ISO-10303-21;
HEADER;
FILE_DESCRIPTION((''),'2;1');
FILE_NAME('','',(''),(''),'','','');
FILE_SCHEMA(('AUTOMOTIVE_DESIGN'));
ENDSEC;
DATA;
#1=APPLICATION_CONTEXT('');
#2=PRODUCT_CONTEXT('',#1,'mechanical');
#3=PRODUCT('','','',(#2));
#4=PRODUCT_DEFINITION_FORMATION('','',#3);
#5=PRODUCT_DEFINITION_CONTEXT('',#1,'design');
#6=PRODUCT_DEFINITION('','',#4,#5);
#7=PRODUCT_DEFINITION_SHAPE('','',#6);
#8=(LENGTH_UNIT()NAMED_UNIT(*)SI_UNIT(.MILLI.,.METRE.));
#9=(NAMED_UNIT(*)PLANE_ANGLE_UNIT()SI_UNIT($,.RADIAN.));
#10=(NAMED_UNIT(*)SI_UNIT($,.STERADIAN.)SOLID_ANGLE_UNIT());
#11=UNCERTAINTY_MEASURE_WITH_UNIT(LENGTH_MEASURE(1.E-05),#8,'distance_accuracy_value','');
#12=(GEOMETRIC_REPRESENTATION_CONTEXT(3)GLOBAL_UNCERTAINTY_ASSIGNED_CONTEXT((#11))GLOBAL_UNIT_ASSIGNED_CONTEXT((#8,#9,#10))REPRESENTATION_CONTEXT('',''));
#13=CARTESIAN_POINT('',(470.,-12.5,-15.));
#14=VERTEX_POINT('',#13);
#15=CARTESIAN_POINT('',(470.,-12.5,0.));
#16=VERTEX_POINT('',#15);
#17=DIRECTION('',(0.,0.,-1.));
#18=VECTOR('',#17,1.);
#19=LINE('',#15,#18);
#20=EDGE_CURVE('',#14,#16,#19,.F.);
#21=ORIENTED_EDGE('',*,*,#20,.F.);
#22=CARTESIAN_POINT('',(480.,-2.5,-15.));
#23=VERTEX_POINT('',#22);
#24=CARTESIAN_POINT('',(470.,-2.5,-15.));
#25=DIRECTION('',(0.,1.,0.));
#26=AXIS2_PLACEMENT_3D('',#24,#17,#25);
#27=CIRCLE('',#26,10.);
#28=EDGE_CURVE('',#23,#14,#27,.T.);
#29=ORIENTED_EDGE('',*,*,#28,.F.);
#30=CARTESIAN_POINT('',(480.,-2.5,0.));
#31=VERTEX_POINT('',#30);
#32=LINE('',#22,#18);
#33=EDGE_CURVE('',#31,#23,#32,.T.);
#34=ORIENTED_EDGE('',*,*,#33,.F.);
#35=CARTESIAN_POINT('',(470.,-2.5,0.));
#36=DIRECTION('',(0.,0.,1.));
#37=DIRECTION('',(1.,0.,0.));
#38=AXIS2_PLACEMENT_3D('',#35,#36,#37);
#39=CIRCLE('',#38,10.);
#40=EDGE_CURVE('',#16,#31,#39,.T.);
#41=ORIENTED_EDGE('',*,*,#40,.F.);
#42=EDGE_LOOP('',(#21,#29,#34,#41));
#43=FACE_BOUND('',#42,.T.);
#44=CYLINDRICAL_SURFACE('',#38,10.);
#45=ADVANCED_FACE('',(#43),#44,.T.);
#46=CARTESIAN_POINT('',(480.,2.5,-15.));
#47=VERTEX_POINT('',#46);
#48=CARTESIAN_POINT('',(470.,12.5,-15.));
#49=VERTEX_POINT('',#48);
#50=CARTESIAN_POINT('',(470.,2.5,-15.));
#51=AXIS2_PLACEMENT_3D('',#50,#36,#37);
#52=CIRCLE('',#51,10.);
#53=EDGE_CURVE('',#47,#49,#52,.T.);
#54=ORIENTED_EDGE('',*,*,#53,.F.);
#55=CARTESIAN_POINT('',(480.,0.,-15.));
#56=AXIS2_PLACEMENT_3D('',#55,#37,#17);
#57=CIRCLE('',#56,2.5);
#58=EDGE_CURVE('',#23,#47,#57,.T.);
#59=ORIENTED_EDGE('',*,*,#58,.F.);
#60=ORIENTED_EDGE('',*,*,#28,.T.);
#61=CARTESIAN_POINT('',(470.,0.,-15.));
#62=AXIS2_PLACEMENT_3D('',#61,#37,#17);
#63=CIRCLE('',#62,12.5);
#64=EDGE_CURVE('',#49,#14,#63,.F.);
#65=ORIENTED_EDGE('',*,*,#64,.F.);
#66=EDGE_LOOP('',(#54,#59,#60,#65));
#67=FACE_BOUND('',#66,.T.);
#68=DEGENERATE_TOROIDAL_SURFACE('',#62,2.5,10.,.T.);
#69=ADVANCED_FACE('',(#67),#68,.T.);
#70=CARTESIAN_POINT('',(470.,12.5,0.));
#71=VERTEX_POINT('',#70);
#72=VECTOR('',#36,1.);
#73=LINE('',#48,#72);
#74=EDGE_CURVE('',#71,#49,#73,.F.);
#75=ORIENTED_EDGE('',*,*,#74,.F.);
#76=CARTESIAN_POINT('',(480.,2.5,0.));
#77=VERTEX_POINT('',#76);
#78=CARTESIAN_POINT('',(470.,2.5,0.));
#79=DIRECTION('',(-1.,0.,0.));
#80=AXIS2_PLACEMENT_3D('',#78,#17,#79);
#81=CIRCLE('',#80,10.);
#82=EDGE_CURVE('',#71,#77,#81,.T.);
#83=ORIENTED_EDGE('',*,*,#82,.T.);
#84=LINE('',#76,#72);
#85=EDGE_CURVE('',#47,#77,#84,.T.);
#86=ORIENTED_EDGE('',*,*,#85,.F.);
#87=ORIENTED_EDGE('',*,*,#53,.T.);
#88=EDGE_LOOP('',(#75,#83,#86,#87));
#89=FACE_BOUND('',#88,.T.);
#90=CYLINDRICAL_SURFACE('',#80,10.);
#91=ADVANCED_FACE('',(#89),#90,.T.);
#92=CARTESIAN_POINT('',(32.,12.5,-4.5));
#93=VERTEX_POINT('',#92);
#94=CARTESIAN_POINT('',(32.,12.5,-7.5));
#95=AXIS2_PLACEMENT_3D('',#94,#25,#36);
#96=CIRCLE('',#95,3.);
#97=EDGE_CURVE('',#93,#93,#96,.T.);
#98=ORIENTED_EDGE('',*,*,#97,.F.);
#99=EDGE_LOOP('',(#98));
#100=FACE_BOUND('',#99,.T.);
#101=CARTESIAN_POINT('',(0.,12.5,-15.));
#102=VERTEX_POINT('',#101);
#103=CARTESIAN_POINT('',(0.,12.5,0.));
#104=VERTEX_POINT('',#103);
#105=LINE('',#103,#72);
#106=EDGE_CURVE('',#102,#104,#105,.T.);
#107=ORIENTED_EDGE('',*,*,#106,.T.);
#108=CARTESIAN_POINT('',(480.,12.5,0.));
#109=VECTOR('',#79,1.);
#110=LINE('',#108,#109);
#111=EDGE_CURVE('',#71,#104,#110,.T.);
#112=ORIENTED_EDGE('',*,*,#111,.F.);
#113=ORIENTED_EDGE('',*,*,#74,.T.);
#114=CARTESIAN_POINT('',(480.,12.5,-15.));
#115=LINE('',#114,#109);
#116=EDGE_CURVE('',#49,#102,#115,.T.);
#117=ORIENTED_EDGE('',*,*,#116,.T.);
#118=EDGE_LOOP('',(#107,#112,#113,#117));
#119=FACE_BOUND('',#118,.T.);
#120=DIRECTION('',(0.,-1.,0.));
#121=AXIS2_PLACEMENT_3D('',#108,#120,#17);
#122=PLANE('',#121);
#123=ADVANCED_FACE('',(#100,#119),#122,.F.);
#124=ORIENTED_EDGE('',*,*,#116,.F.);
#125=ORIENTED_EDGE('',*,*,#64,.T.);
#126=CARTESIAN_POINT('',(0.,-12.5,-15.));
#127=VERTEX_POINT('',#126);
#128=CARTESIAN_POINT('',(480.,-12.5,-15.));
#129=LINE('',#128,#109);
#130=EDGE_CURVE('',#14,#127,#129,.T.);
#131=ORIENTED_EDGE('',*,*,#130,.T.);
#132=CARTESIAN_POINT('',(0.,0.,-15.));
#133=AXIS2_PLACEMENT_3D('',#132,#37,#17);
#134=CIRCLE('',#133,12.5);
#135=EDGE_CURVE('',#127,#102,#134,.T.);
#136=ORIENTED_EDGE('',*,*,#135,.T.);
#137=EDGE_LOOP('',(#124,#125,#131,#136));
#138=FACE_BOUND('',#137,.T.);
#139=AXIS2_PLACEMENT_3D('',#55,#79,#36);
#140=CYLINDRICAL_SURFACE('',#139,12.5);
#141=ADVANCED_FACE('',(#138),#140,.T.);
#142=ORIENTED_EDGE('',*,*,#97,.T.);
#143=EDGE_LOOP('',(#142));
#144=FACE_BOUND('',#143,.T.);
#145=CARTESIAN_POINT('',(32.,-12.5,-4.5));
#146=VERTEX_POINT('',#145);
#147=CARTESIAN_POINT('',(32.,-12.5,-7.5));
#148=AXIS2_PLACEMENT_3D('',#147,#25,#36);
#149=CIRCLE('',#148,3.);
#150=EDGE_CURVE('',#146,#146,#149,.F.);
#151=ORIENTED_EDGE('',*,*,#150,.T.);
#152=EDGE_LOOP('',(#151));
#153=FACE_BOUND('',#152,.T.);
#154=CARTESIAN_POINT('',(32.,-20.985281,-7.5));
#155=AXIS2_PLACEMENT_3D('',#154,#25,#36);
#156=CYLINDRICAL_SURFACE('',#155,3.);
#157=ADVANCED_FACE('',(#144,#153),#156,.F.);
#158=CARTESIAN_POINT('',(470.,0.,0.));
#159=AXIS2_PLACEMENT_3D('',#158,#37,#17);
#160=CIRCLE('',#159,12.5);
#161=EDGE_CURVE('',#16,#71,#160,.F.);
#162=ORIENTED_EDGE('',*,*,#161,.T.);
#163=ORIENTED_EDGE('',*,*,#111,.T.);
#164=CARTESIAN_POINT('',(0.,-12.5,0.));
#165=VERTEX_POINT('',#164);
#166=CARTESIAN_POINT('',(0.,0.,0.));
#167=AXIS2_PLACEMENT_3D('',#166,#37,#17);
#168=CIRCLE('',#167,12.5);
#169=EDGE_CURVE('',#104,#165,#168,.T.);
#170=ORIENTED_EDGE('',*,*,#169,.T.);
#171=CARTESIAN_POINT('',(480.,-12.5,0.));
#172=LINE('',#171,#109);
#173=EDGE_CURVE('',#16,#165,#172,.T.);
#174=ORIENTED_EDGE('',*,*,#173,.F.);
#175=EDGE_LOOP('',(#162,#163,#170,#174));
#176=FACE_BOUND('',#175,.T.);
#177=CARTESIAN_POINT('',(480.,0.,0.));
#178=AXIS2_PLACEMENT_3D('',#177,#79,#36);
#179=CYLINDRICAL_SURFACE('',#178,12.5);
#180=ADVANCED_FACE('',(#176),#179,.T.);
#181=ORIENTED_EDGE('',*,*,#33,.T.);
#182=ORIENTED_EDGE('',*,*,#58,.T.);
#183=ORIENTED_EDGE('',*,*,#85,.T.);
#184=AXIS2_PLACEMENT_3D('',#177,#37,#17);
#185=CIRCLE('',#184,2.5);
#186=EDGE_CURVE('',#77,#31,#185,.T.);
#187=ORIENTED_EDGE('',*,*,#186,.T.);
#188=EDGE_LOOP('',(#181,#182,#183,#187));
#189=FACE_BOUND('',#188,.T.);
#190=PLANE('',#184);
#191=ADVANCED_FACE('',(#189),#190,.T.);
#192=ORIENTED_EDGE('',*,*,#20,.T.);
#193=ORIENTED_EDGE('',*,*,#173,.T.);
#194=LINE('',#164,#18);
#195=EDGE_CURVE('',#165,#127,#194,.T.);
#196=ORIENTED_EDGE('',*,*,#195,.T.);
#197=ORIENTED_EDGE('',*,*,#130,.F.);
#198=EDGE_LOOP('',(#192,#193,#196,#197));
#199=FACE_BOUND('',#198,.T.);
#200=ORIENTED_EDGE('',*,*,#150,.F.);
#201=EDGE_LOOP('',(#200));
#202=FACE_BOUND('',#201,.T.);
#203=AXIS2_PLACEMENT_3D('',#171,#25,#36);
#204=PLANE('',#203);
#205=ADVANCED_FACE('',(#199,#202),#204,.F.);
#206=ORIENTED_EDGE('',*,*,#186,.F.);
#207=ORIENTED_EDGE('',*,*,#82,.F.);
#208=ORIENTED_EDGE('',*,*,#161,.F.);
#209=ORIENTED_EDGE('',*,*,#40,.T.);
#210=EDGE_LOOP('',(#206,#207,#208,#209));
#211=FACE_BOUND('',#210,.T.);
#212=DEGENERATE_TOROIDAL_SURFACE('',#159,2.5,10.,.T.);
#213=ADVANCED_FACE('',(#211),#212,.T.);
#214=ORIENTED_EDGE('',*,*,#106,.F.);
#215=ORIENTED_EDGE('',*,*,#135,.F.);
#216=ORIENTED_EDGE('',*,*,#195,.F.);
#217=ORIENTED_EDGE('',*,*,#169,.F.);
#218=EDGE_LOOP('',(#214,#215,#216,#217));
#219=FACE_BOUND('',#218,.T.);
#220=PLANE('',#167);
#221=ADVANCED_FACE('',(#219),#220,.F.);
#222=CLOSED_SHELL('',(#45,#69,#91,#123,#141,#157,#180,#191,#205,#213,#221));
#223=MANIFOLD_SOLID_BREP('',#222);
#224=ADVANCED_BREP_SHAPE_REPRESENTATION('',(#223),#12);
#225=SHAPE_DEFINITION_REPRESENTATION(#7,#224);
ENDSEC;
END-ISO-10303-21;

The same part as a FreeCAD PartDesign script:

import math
import FreeCAD as App
import Part
import Sketcher


def edges_at(feature, points):
    """Names of the edges that pass closest to the given points."""
    edges = feature.Shape.Edges
    near = lambda p: min(range(len(edges)), key=lambda i: edges[i].distToShape(Part.Vertex(*p))[0])
    return sorted({f"Edge{near(p) + 1}" for p in points})

doc = App.newDocument("Part")
body = doc.addObject("PartDesign::Body", "Body")

# Sketch on YZ plane
sketch1 = body.newObject("Sketcher::SketchObject", "Sketch")
sketch1.AttachmentSupport = (doc.getObject("YZ_Plane"), [""])
sketch1.MapMode = "FlatFace"
sketch1.addGeometry(Part.LineSegment(App.Vector(12, -15, 0), App.Vector(12, 0, 0)), False)
sketch1.addGeometry(Part.ArcOfCircle(Part.Circle(App.Vector(0, 0, 0), App.Vector(0, 0, 1), 12), math.radians(0), math.radians(180)), False)
sketch1.addGeometry(Part.LineSegment(App.Vector(-12, 0, 0), App.Vector(-12, -15, 0)), False)
sketch1.addGeometry(Part.ArcOfCircle(Part.Circle(App.Vector(0, -15, 0), App.Vector(0, 0, 1), 12), math.radians(180), math.radians(360)), False)
sketch1.addConstraint(Sketcher.Constraint("Tangent", 0, 2, 1, 1))
sketch1.addConstraint(Sketcher.Constraint("Tangent", 1, 2, 2, 1))
sketch1.addConstraint(Sketcher.Constraint("Tangent", 2, 2, 3, 1))
sketch1.addConstraint(Sketcher.Constraint("Tangent", 3, 2, 0, 1))
sketch1.addConstraint(Sketcher.Constraint("Vertical", 0))
sketch1.addConstraint(Sketcher.Constraint("Vertical", 2))
sketch1.addConstraint(Sketcher.Constraint("Coincident", 1, 3, -1, 1))
sketch1.addConstraint(Sketcher.Constraint("Radius", 1, 12.5))
sketch1.addConstraint(Sketcher.Constraint("DistanceY", 0, 1, 0, 2, 15.0))
pad1 = body.newObject("PartDesign::Pad", "Pad")
pad1.Profile = sketch1
pad1.Length = 480
doc.recompute()

fillet = body.newObject("PartDesign::Fillet", "Fillet")
fillet.Base = (pad1, edges_at(pad1, [
    (480, 0, -27.5),
    (480, 12.5, -7.5),
    (480, 0, 12.5),
    (480, -12.5, -7.5),
]))
fillet.Radius = 10

# Sketch on XZ plane
sketch2 = body.newObject("Sketcher::SketchObject", "Sketch001")
sketch2.AttachmentSupport = (doc.getObject("XZ_Plane"), [""])
sketch2.MapMode = "FlatFace"
sketch2.AttachmentOffset = App.Placement(App.Vector(0, 0, -12.5), App.Rotation())
sketch2.addGeometry(Part.Circle(App.Vector(32, -7.5, 0), App.Vector(0, 0, 1), 3), False)
sketch2.addConstraint(Sketcher.Constraint("Diameter", 0, 6.0))
sketch2.addConstraint(Sketcher.Constraint("DistanceX", -1, 1, 0, 3, 32.0))
sketch2.addConstraint(Sketcher.Constraint("DistanceY", 0, 3, -1, 1, 7.5))
pocket1 = body.newObject("PartDesign::Pocket", "Pocket")
pocket1.Profile = sketch2
pocket1.Length = 25
pocket1.Reversed = True

doc.recompute()
